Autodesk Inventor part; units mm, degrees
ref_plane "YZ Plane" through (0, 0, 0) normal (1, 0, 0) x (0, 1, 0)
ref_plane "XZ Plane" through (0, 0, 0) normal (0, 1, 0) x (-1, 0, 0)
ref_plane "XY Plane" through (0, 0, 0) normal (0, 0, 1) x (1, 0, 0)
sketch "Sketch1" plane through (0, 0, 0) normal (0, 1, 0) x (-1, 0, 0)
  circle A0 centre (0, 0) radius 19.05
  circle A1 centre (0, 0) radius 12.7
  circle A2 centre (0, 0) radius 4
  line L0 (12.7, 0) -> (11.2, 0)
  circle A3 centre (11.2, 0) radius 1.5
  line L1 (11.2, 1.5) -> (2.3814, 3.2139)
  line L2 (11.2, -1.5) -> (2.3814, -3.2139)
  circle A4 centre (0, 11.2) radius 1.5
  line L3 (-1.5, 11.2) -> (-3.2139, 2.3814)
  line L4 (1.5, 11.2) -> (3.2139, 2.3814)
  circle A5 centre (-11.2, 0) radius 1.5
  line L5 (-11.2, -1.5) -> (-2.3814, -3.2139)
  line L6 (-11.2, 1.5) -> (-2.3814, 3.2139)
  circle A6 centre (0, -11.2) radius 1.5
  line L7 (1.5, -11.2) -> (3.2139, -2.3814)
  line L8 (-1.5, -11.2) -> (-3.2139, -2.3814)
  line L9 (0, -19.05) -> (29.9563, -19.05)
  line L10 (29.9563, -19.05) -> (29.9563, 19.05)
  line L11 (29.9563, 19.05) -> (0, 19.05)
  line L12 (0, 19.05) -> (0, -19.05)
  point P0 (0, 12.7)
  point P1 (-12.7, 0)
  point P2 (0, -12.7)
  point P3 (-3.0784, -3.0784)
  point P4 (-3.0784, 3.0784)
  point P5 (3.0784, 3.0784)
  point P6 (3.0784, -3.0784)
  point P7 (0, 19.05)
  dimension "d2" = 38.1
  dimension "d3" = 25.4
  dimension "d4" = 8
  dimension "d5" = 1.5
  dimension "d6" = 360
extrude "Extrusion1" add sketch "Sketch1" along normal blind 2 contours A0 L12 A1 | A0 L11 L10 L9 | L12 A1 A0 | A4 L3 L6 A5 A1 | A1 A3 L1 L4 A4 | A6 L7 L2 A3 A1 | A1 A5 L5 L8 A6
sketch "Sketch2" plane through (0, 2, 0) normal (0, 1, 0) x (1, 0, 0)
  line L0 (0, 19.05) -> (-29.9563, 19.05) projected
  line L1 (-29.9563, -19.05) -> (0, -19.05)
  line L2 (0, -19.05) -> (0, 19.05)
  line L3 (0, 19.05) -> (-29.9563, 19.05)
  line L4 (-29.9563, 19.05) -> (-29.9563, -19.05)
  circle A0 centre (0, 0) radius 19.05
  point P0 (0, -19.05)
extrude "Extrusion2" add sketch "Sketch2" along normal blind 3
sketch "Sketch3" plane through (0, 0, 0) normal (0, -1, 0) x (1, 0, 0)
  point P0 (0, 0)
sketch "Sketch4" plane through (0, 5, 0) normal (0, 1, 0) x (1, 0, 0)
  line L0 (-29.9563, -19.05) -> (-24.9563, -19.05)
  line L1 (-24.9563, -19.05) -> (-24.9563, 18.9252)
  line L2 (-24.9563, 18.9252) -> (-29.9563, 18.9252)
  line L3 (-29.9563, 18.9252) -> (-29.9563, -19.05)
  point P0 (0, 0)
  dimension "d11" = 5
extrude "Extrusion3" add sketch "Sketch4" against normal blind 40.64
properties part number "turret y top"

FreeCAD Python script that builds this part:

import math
import FreeCAD as App
import Part
import Sketcher
from FreeCAD import Vector
Q = App.Units.Quantity

doc = App.newDocument("Part")
body = doc.addObject("PartDesign::Body", "Body")

# Sketch on XZ plane
sketch1 = body.newObject("Sketcher::SketchObject", "Sketch")
sketch1.AttachmentSupport = (doc.getObject("XZ_Plane"), [""])
sketch1.MapMode = "FlatFace"
sketch1.addGeometry(Part.LineSegment(Vector(0, -19.1, 0), Vector(-30, -19.1, 0)), False)
sketch1.addGeometry(Part.LineSegment(Vector(-30, -19.1, 0), Vector(-30, 19.1, 0)), False)
sketch1.addGeometry(Part.LineSegment(Vector(-30, 19.1, 0), Vector(0, 19.1, 0)), False)
sketch1.addGeometry(Part.ArcOfCircle(Part.Circle(Vector(0, 0, 0), Vector(0, 0, 1), 19.1), math.radians(-90), math.radians(90)), False)
sketch1.addGeometry(Part.ArcOfCircle(Part.Circle(Vector(0, -11.2, 0), Vector(0, 0, 1), 1.5), math.radians(180), math.radians(360)), False)
sketch1.addGeometry(Part.LineSegment(Vector(1.5, -11.2, 0), Vector(3.1, -3.1, 0)), False)
sketch1.addGeometry(Part.LineSegment(Vector(3.1, -3.1, 0), Vector(11.2, -1.5, 0)), False)
sketch1.addGeometry(Part.ArcOfCircle(Part.Circle(Vector(11.2, 0, 0), Vector(0, 0, 1), 1.5), math.radians(-90), math.radians(90)), False)
sketch1.addGeometry(Part.LineSegment(Vector(11.2, 1.5, 0), Vector(3.1, 3.1, 0)), False)
sketch1.addGeometry(Part.LineSegment(Vector(3.1, 3.1, 0), Vector(1.5, 11.2, 0)), False)
sketch1.addGeometry(Part.ArcOfCircle(Part.Circle(Vector(0, 11.2, 0), Vector(0, 0, 1), 1.5), math.radians(0), math.radians(180)), False)
sketch1.addGeometry(Part.LineSegment(Vector(-1.5, 11.2, 0), Vector(-3.1, 3.1, 0)), False)
sketch1.addGeometry(Part.LineSegment(Vector(-3.1, 3.1, 0), Vector(-11.2, 1.5, 0)), False)
sketch1.addGeometry(Part.ArcOfCircle(Part.Circle(Vector(-11.2, 0, 0), Vector(0, 0, 1), 1.5), math.radians(90), math.radians(270)), False)
sketch1.addGeometry(Part.LineSegment(Vector(-11.2, -1.5, 0), Vector(-3.1, -3.1, 0)), False)
sketch1.addGeometry(Part.LineSegment(Vector(-3.1, -3.1, 0), Vector(-1.5, -11.2, 0)), False)
sketch1.addConstraint(Sketcher.Constraint("Coincident", 0, 2, 1, 1))
sketch1.addConstraint(Sketcher.Constraint("Coincident", 1, 2, 2, 1))
sketch1.addConstraint(Sketcher.Constraint("Tangent", 2, 2, 3, 2))
sketch1.addConstraint(Sketcher.Constraint("Tangent", 3, 1, 0, 1))
sketch1.addConstraint(Sketcher.Constraint("Coincident", 4, 2, 5, 1))
sketch1.addConstraint(Sketcher.Constraint("Coincident", 5, 2, 6, 1))
sketch1.addConstraint(Sketcher.Constraint("Coincident", 6, 2, 7, 1))
sketch1.addConstraint(Sketcher.Constraint("Coincident", 7, 2, 8, 1))
sketch1.addConstraint(Sketcher.Constraint("Coincident", 8, 2, 9, 1))
sketch1.addConstraint(Sketcher.Constraint("Coincident", 9, 2, 10, 1))
sketch1.addConstraint(Sketcher.Constraint("Coincident", 10, 2, 11, 1))
sketch1.addConstraint(Sketcher.Constraint("Coincident", 11, 2, 12, 1))
sketch1.addConstraint(Sketcher.Constraint("Coincident", 12, 2, 13, 1))
sketch1.addConstraint(Sketcher.Constraint("Coincident", 13, 2, 14, 1))
sketch1.addConstraint(Sketcher.Constraint("Coincident", 14, 2, 15, 1))
sketch1.addConstraint(Sketcher.Constraint("Coincident", 15, 2, 4, 1))
sketch1.addConstraint(Sketcher.Constraint("Horizontal", 0))
sketch1.addConstraint(Sketcher.Constraint("Vertical", 1))
sketch1.addConstraint(Sketcher.Constraint("Horizontal", 2))
sketch1.addConstraint(Sketcher.Constraint("Coincident", 3, 3, -1, 1))
sketch1.addConstraint(Sketcher.Constraint("Equal", 4, 7))
sketch1.addConstraint(Sketcher.Constraint("Equal", 7, 10))
sketch1.addConstraint(Sketcher.Constraint("Equal", 10, 13))
sketch1.addConstraint(Sketcher.Constraint("Symmetric", 4, 3, 10, 3, -1, 1))
sketch1.addConstraint(Sketcher.Constraint("Symmetric", 7, 3, 13, 3, -1, 1))
sketch1.addConstraint(Sketcher.Constraint("Symmetric", 5, 2, 11, 2, -1, 1))
sketch1.addConstraint(Sketcher.Constraint("Symmetric", 8, 2, 14, 2, -1, 1))
sketch1.addConstraint(Sketcher.Constraint("Symmetric", 9, 2, 10, 2, -2))
sketch1.addConstraint(Sketcher.Constraint("Symmetric", 8, 2, 11, 2, -2))
sketch1.addConstraint(Sketcher.Constraint("Symmetric", 7, 2, 12, 2, -2))
sketch1.addConstraint(Sketcher.Constraint("Perpendicular", 5, 8))
sketch1.addConstraint(Sketcher.Constraint("Perpendicular", 6, 9))
sketch1.addConstraint(Sketcher.Constraint("Perpendicular", 8, 11))
sketch1.addConstraint(Sketcher.Constraint("Perpendicular", 11, 14))
sketch1.addConstraint(Sketcher.Constraint("Perpendicular", 12, 15))
sketch1.addConstraint(Sketcher.Constraint("Horizontal", 10, 3, 9, 2))
sketch1.addConstraint(Sketcher.Constraint("Vertical", 7, 3, 6, 2))
sketch1.addConstraint(Sketcher.Constraint("Equal", 5, 6))
sketch1.addConstraint(Sketcher.Constraint("Radius", 4, Q("1.5 mm")))
sketch1.addConstraint(Sketcher.Constraint("Radius", 3, Q("19.05 mm")))
sketch1.addConstraint(Sketcher.Constraint("DistanceY", 4, 3, -1, 1, Q("11.2 mm")))
sketch1.addConstraint(Sketcher.Constraint("DistanceX", 0, 2, 0, 1, Q("29.9563 mm")))
sketch1.addConstraint(Sketcher.Constraint("Distance", 5, Q("8.2735 mm")))
pad1 = body.newObject("PartDesign::Pad", "Pad")
pad1.Profile = sketch1
pad1.Length = 2
pad1.Reversed = True

# Sketch on XZ plane
sketch2 = body.newObject("Sketcher::SketchObject", "Sketch001")
sketch2.AttachmentSupport = (doc.getObject("XZ_Plane"), [""])
sketch2.MapMode = "FlatFace"
sketch2.AttachmentOffset = App.Placement(Vector(0, 0, -2), App.Rotation())
sketch2.addGeometry(Part.LineSegment(Vector(-30, 19, 0), Vector(0, 19, 0)), False)
sketch2.addGeometry(Part.ArcOfCircle(Part.Circle(Vector(0, 0, 0), Vector(0, 0, 1), 19), math.radians(-90), math.radians(90)), False)
sketch2.addGeometry(Part.LineSegment(Vector(0, -19, 0), Vector(-30, -19, 0)), False)
sketch2.addGeometry(Part.LineSegment(Vector(-30, -19, 0), Vector(-30, 19, 0)), False)
sketch2.addConstraint(Sketcher.Constraint("Tangent", 0, 2, 1, 2))
sketch2.addConstraint(Sketcher.Constraint("Tangent", 1, 1, 2, 1))
sketch2.addConstraint(Sketcher.Constraint("Coincident", 2, 2, 3, 1))
sketch2.addConstraint(Sketcher.Constraint("Coincident", 3, 2, 0, 1))
sketch2.addConstraint(Sketcher.Constraint("Horizontal", 0))
sketch2.addConstraint(Sketcher.Constraint("Horizontal", 2))
sketch2.addConstraint(Sketcher.Constraint("Vertical", 3))
sketch2.addConstraint(Sketcher.Constraint("Coincident", 1, 3, -1, 1))
sketch2.addConstraint(Sketcher.Constraint("Radius", 1, Q("19.05 mm")))
sketch2.addConstraint(Sketcher.Constraint("DistanceX", 0, 1, 0, 2, Q("29.9563 mm")))
pad2 = body.newObject("PartDesign::Pad", "Pad001")
pad2.Profile = sketch2
pad2.Length = 3
pad2.Reversed = True

# Sketch on XZ plane
sketch3 = body.newObject("Sketcher::SketchObject", "Sketch002")
sketch3.AttachmentSupport = (doc.getObject("XZ_Plane"), [""])
sketch3.MapMode = "FlatFace"
sketch3.AttachmentOffset = App.Placement(Vector(0, 0, -5), App.Rotation())
sketch3.addGeometry(Part.LineSegment(Vector(-30, -19, 0), Vector(-30, 19, 0)), False)
sketch3.addGeometry(Part.LineSegment(Vector(-30, 19, 0), Vector(-25, 19, 0)), False)
sketch3.addGeometry(Part.LineSegment(Vector(-25, 19, 0), Vector(-25, -19, 0)), False)
sketch3.addGeometry(Part.LineSegment(Vector(-25, -19, 0), Vector(-30, -19, 0)), False)
sketch3.addConstraint(Sketcher.Constraint("Coincident", 0, 2, 1, 1))
sketch3.addConstraint(Sketcher.Constraint("Coincident", 1, 2, 2, 1))
sketch3.addConstraint(Sketcher.Constraint("Coincident", 2, 2, 3, 1))
sketch3.addConstraint(Sketcher.Constraint("Coincident", 3, 2, 0, 1))
sketch3.addConstraint(Sketcher.Constraint("Vertical", 0))
sketch3.addConstraint(Sketcher.Constraint("Horizontal", 1))
sketch3.addConstraint(Sketcher.Constraint("Vertical", 2))
sketch3.addConstraint(Sketcher.Constraint("Horizontal", 3))
sketch3.addConstraint(Sketcher.Constraint("DistanceX", 1, 1, 1, 2, Q("5 mm")))
sketch3.addConstraint(Sketcher.Constraint("DistanceY", -1, 1, 0, 2, Q("19.05 mm")))
sketch3.addConstraint(Sketcher.Constraint("DistanceY", 0, 1, 0, 2, Q("37.9752 mm")))
sketch3.addConstraint(Sketcher.Constraint("DistanceX", 0, 2, -1, 1, Q("29.9563 mm")))
pad3 = body.newObject("PartDesign::Pad", "Pad002")
pad3.Profile = sketch3
pad3.Length = 40.64

doc.recompute()
